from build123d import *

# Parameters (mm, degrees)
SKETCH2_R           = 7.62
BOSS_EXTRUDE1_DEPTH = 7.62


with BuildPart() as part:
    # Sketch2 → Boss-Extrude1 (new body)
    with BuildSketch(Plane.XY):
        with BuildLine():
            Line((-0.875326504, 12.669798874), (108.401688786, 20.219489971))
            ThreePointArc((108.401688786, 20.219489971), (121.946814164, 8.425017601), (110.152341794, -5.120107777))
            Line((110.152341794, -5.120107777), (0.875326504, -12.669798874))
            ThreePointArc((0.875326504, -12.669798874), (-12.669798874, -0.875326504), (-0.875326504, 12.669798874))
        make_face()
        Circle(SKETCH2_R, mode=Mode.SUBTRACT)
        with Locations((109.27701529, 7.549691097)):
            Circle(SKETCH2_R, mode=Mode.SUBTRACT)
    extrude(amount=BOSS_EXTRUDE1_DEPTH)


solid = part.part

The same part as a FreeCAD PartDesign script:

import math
import FreeCAD as App
import Part
import Sketcher
Q = App.Units.Quantity

doc = App.newDocument("Part")
params = doc.addObject("Spreadsheet::Sheet", "Params")
for row, (alias, value) in enumerate([
    ("sketch1_diameter", "0.6 in"),
    ("sketch1_radius", "0.5 in"),
    ("sketch1_length", "4.3125 in"),
    ("pad1_length", "0.3 in"),
], start=1):
    params.set(f"A{row}", alias)
    params.set(f"B{row}", "=" + value)
    params.setAlias(f"B{row}", alias)

body = doc.addObject("PartDesign::Body", "Body")

# Sketch on XY plane
sketch1 = body.newObject("Sketcher::SketchObject", "Sketch")
sketch1.AttachmentSupport = (doc.getObject("XY_Plane"), [""])
sketch1.MapMode = "FlatFace"
sketch1.addGeometry(Part.LineSegment(App.Vector(108, 20, 0), App.Vector(-1, 13, 0)), False)
sketch1.addGeometry(Part.ArcOfCircle(Part.Circle(App.Vector(0, 0, 0), App.Vector(0, 0, 1), 13), math.radians(94), math.radians(274)), False)
sketch1.addGeometry(Part.LineSegment(App.Vector(1, -13, 0), App.Vector(110, -5, 0)), False)
sketch1.addGeometry(Part.ArcOfCircle(Part.Circle(App.Vector(109, 8, 0), App.Vector(0, 0, 1), 13), math.radians(-86), math.radians(94)), False)
sketch1.addGeometry(Part.Circle(App.Vector(0, 0, 0), App.Vector(0, 0, 1), 8), False)
sketch1.addGeometry(Part.Circle(App.Vector(109, 8, 0), App.Vector(0, 0, 1), 8), False)
sketch1.addConstraint(Sketcher.Constraint("Tangent", 0, 2, 1, 1))
sketch1.addConstraint(Sketcher.Constraint("Tangent", 1, 2, 2, 1))
sketch1.addConstraint(Sketcher.Constraint("Tangent", 2, 2, 3, 1))
sketch1.addConstraint(Sketcher.Constraint("Tangent", 3, 2, 0, 1))
sketch1.addConstraint(Sketcher.Constraint("Coincident", 1, 3, -1, 1))
sketch1.addConstraint(Sketcher.Constraint("Coincident", 4, 3, -1, 1))
sketch1.addConstraint(Sketcher.Constraint("Coincident", 5, 3, 3, 3))
sketch1.addConstraint(Sketcher.Constraint("Equal", 1, 3))
sketch1.addConstraint(Sketcher.Constraint("Equal", 4, 5))
sketch1.addConstraint(Sketcher.Constraint("Diameter", 4, Q("0.6 in")))
sketch1.addConstraint(Sketcher.Constraint("Radius", 1, Q("0.5 in")))
sketch1.addConstraint(Sketcher.Constraint("Distance", 0, Q("4.3125 in")))
sketch1.addConstraint(Sketcher.Constraint("DistanceY", -1, 1, 0, 2, Q("12.669799 mm")))
sketch1.setExpression("Constraints[9]", "Params.sketch1_diameter")
sketch1.setExpression("Constraints[10]", "Params.sketch1_radius")
sketch1.setExpression("Constraints[11]", "Params.sketch1_length")
pad1 = body.newObject("PartDesign::Pad", "Pad")
pad1.Profile = sketch1
pad1.setExpression("Length", "Params.pad1_length")

doc.recompute()
